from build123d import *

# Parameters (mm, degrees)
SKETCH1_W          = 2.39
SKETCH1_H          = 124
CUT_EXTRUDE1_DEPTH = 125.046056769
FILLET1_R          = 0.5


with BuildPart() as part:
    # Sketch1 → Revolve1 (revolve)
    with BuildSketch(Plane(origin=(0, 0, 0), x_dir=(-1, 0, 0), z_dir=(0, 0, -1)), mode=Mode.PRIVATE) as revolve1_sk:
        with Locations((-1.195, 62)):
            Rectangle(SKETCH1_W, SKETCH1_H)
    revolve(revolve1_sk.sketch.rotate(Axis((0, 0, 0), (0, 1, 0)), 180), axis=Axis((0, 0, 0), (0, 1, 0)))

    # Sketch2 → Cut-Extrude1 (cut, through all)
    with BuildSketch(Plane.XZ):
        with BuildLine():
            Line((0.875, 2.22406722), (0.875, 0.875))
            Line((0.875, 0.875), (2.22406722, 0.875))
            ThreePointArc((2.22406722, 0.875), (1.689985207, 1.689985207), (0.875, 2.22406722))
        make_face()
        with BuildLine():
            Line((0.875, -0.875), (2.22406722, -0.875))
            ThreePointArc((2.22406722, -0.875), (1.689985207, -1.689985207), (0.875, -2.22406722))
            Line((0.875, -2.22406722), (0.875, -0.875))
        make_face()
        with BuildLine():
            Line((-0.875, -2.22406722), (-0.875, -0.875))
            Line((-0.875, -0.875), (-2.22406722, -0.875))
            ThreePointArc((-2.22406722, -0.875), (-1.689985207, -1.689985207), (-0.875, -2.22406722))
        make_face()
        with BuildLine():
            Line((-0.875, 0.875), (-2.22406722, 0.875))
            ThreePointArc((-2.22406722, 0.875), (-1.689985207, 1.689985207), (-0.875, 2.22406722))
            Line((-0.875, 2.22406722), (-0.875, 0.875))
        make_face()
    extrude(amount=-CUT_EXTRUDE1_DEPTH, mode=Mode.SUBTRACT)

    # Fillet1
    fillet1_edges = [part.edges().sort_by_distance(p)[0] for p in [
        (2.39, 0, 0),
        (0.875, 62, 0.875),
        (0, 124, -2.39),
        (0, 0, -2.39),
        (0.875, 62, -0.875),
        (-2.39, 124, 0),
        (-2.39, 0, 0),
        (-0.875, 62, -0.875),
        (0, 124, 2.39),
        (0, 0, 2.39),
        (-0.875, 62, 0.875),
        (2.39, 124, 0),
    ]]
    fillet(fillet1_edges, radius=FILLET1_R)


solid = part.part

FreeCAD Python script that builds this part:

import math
import FreeCAD as App
import Part
import Sketcher

V = App.Vector
Q = App.Units.Quantity


def edges_at(feature, points):
    """Names of the edges that pass closest to the given points."""
    edges = feature.Shape.Edges
    near = lambda p: min(range(len(edges)), key=lambda i: edges[i].distToShape(Part.Vertex(*p))[0])
    return sorted({f"Edge{near(p) + 1}" for p in points})

doc = App.newDocument("Part")
params = doc.addObject("Spreadsheet::Sheet", "Params")
for row, (alias, value) in enumerate([
    ("sketch1_height", "124 mm"),
    ("sketch1_width", "2.39 mm"),
    ("revolution_angle", "360 deg"),
    ("sketch2_radius", "2.39 mm"),
    ("fillet_radius", "0.5 mm"),
], start=1):
    params.set(f"A{row}", alias)
    params.set(f"B{row}", "=" + value)
    params.setAlias(f"B{row}", alias)

body = doc.addObject("PartDesign::Body", "Body")

# Sketch on XY plane
sketch1 = body.newObject("Sketcher::SketchObject", "Sketch")
sketch1.AttachmentSupport = (doc.getObject("XY_Plane"), [""])
sketch1.MapMode = "FlatFace"
sketch1.addGeometry([
    Part.LineSegment(V(2.4, 124, 0), V(2.4, 0, 0)),
    Part.LineSegment(V(2.4, 0, 0), V(0, 0, 0)),
    Part.LineSegment(V(0, 0, 0), V(0, 124, 0)),
    Part.LineSegment(V(0, 124, 0), V(2.4, 124, 0)),
], False)
sketch1.addConstraint([
    Sketcher.Constraint("Coincident", 0, 2, 1, 1),
    Sketcher.Constraint("Coincident", 1, 2, 2, 1),
    Sketcher.Constraint("Coincident", 2, 2, 3, 1),
    Sketcher.Constraint("Coincident", 3, 2, 0, 1),
    Sketcher.Constraint("Vertical", 0),
    Sketcher.Constraint("Horizontal", 1),
    Sketcher.Constraint("Vertical", 2),
    Sketcher.Constraint("Horizontal", 3),
    Sketcher.Constraint("Coincident", 1, 2, -1, 1),
    Sketcher.Constraint("DistanceY", 0, 2, 0, 1, Q("124 mm")),
    Sketcher.Constraint("DistanceX", 1, 2, 1, 1, Q("2.39 mm")),
])
sketch1.setExpression("Constraints[9]", "Params.sketch1_height")
sketch1.setExpression("Constraints[10]", "Params.sketch1_width")
revolution = body.newObject("PartDesign::Revolution", "Revolution")
revolution.Profile = sketch1
revolution.ReferenceAxis = (sketch1, ["V_Axis"])
revolution.setExpression("Angle", "Params.revolution_angle")

# Sketch on XZ plane
sketch2 = body.newObject("Sketcher::SketchObject", "Sketch001")
sketch2.AttachmentSupport = (doc.getObject("XZ_Plane"), [""])
sketch2.MapMode = "FlatFace"
sketch2.addGeometry([
    Part.LineSegment(V(0.9, 2.2, 0), V(0.9, 0.9, 0)),  # 0
    Part.LineSegment(V(0.9, 0.9, 0), V(2.2, 0.9, 0)),  # 1
    Part.ArcOfCircle(Part.Circle(V(0, 0, 0), V(0, 0, 1), 2.4), math.radians(21), math.radians(69)),  # 2
    Part.LineSegment(V(2.2, -0.9, 0), V(0.9, -0.9, 0)),  # 3
    Part.LineSegment(V(0.9, -0.9, 0), V(0.9, -2.2, 0)),  # 4
    Part.ArcOfCircle(Part.Circle(V(0, 0, 0), V(0, 0, 1), 2.4), math.radians(-69), math.radians(-21)),  # 5
    Part.LineSegment(V(-0.9, -2.2, 0), V(-0.9, -0.9, 0)),  # 6
    Part.LineSegment(V(-0.9, -0.9, 0), V(-2.2, -0.9, 0)),  # 7
    Part.ArcOfCircle(Part.Circle(V(0, 0, 0), V(0, 0, 1), 2.4), math.radians(-159), math.radians(-111)),  # 8
    Part.LineSegment(V(-2.2, 0.9, 0), V(-0.9, 0.9, 0)),  # 9
    Part.LineSegment(V(-0.9, 0.9, 0), V(-0.9, 2.2, 0)),  # 10
    Part.ArcOfCircle(Part.Circle(V(0, 0, 0), V(0, 0, 1), 2.4), math.radians(111), math.radians(159)),  # 11
], False)
sketch2.addConstraint([
    Sketcher.Constraint("Coincident", 0, 2, 1, 1),
    Sketcher.Constraint("Coincident", 1, 2, 2, 1),
    Sketcher.Constraint("Coincident", 2, 2, 0, 1),
    Sketcher.Constraint("Coincident", 3, 2, 4, 1),
    Sketcher.Constraint("Coincident", 4, 2, 5, 1),
    Sketcher.Constraint("Coincident", 5, 2, 3, 1),
    Sketcher.Constraint("Coincident", 6, 2, 7, 1),
    Sketcher.Constraint("Coincident", 7, 2, 8, 1),
    Sketcher.Constraint("Coincident", 8, 2, 6, 1),
    Sketcher.Constraint("Coincident", 9, 2, 10, 1),
    Sketcher.Constraint("Coincident", 10, 2, 11, 1),
    Sketcher.Constraint("Coincident", 11, 2, 9, 1),
    Sketcher.Constraint("Vertical", 0),
    Sketcher.Constraint("Horizontal", 1),
    Sketcher.Constraint("Horizontal", 3),
    Sketcher.Constraint("Vertical", 4),
    Sketcher.Constraint("Vertical", 6),
    Sketcher.Constraint("Horizontal", 7),
    Sketcher.Constraint("Horizontal", 9),
    Sketcher.Constraint("Vertical", 10),
    Sketcher.Constraint("Coincident", 2, 3, -1, 1),
    Sketcher.Constraint("Coincident", 5, 3, -1, 1),
    Sketcher.Constraint("Coincident", 8, 3, -1, 1),
    Sketcher.Constraint("Coincident", 11, 3, -1, 1),
    Sketcher.Constraint("Equal", 2, 5),
    Sketcher.Constraint("Equal", 5, 8),
    Sketcher.Constraint("Equal", 8, 11),
    Sketcher.Constraint("Symmetric", 0, 2, 6, 2, -1, 1),
    Sketcher.Constraint("Symmetric", 3, 2, 9, 2, -1, 1),
    Sketcher.Constraint("Symmetric", 3, 2, 6, 2, -2),
    Sketcher.Constraint("Equal", 9, 0),
    Sketcher.Constraint("Radius", 2, Q("2.39 mm")),
    Sketcher.Constraint("DistanceY", 3, 2, 0, 2, Q("1.75 mm")),
])
sketch2.setExpression("Constraints[31]", "Params.sketch2_radius")
pocket1 = body.newObject("PartDesign::Pocket", "Pocket")
pocket1.Profile = sketch2
pocket1.Type = "ThroughAll"
doc.recompute()

fillet = body.newObject("PartDesign::Fillet", "Fillet")
fillet.Base = (pocket1, edges_at(pocket1, [
    (2.39, 0, 0),
    (0.875, 62, 0.875),
    (0, 124, -2.39),
    (0, 0, -2.39),
    (0.875, 62, -0.875),
    (-2.39, 124, 0),
    (-2.39, 0, 0),
    (-0.875, 62, -0.875),
    (0, 124, 2.39),
    (0, 0, 2.39),
    (-0.875, 62, 0.875),
    (2.39, 124, 0),
]))
fillet.setExpression("Radius", "Params.fillet_radius")

doc.recompute()
